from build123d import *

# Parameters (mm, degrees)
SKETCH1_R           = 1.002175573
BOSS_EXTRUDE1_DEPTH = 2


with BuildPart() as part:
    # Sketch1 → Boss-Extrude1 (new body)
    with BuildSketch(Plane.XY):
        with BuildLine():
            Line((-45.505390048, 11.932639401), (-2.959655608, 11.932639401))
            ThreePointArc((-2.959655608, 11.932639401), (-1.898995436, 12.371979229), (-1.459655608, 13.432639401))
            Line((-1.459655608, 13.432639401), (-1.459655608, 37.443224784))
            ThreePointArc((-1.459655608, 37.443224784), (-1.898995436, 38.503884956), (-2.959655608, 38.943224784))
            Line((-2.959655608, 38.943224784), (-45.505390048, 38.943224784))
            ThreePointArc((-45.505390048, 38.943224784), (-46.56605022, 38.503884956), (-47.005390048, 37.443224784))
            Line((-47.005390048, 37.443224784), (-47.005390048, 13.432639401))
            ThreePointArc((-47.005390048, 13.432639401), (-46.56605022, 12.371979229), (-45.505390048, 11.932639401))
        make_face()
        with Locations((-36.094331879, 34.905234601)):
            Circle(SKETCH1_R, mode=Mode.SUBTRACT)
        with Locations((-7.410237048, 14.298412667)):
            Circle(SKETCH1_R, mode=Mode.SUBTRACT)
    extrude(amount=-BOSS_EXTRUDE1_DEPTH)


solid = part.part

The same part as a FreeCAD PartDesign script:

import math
import FreeCAD as App
import Part
import Sketcher
from FreeCAD import Vector

doc = App.newDocument("Part")
params = doc.addObject("Spreadsheet::Sheet", "Params")
for row, (alias, value) in enumerate([
    ("sketch1_radius", "1.5 mm"),
    ("pad1_length", "2 mm"),
], start=1):
    params.set(f"A{row}", alias)
    params.set(f"B{row}", "=" + value)
    params.setAlias(f"B{row}", alias)

body = doc.addObject("PartDesign::Body", "Body")

sketch1 = body.newObject("Sketcher::SketchObject", "Sketch")
sketch1.AttachmentSupport = (doc.getObject("XY_Plane"), [""])
sketch1.MapMode = "FlatFace"
sketch1.addGeometry([
    Part.LineSegment(Vector(-45.5, 11.9, 0), Vector(-3, 11.9, 0)),
    Part.ArcOfCircle(Part.Circle(Vector(-3, 13.4, 0), Vector(0, 0, 1), 1.5), math.radians(-90), math.radians(0)),
    Part.LineSegment(Vector(-1.5, 13.4, 0), Vector(-1.5, 37.4, 0)),
    Part.ArcOfCircle(Part.Circle(Vector(-3, 37.4, 0), Vector(0, 0, 1), 1.5), math.radians(0), math.radians(90)),
    Part.LineSegment(Vector(-3, 38.9, 0), Vector(-45.5, 38.9, 0)),
    Part.ArcOfCircle(Part.Circle(Vector(-45.5, 37.4, 0), Vector(0, 0, 1), 1.5), math.radians(90), math.radians(180)),
    Part.LineSegment(Vector(-47, 37.4, 0), Vector(-47, 13.4, 0)),
    Part.ArcOfCircle(Part.Circle(Vector(-45.5, 13.4, 0), Vector(0, 0, 1), 1.5), math.radians(180), math.radians(270)),
    Part.Circle(Vector(-7.4, 14.3, 0), Vector(0, 0, 1), 1),
    Part.Circle(Vector(-36.1, 34.9, 0), Vector(0, 0, 1), 1),
], False)
sketch1.addConstraint([
    Sketcher.Constraint("Tangent", 0, 2, 1, 1),
    Sketcher.Constraint("Tangent", 1, 2, 2, 1),
    Sketcher.Constraint("Tangent", 2, 2, 3, 1),
    Sketcher.Constraint("Tangent", 3, 2, 4, 1),
    Sketcher.Constraint("Tangent", 4, 2, 5, 1),
    Sketcher.Constraint("Tangent", 5, 2, 6, 1),
    Sketcher.Constraint("Tangent", 6, 2, 7, 1),
    Sketcher.Constraint("Tangent", 7, 2, 0, 1),
    Sketcher.Constraint("Horizontal", 0),
    Sketcher.Constraint("Vertical", 2),
    Sketcher.Constraint("Horizontal", 4),
    Sketcher.Constraint("Vertical", 6),
    Sketcher.Constraint("Equal", 1, 3),
    Sketcher.Constraint("Equal", 3, 5),
    Sketcher.Constraint("Equal", 5, 7),
    Sketcher.Constraint("Equal", 8, 9),
    Sketcher.Constraint("Radius", 1, 1.5),
    Sketcher.Constraint("Diameter", 8, 2.004351),
    Sketcher.Constraint("DistanceX", 0, 1, 0, 2, 42.545734),
    Sketcher.Constraint("DistanceY", 2, 1, 2, 2, 24.010585),
    Sketcher.Constraint("DistanceY", -1, 1, 1, 3, 13.432639),
    Sketcher.Constraint("DistanceX", 5, 3, -1, 1, 45.50539),
    Sketcher.Constraint("DistanceX", 9, 3, -1, 1, 36.094332),
    Sketcher.Constraint("DistanceX", 8, 3, 1, 3, 4.450581),
    Sketcher.Constraint("DistanceY", 9, 3, 5, 3, 2.53799),
    Sketcher.Constraint("DistanceY", 8, 3, 9, 3, 20.606822),
])
sketch1.setExpression("Constraints[16]", "Params.sketch1_radius")
pad1 = body.newObject("PartDesign::Pad", "Pad")
pad1.Profile = sketch1
pad1.setExpression("Length", "Params.pad1_length")
pad1.Reversed = True

doc.recompute()
